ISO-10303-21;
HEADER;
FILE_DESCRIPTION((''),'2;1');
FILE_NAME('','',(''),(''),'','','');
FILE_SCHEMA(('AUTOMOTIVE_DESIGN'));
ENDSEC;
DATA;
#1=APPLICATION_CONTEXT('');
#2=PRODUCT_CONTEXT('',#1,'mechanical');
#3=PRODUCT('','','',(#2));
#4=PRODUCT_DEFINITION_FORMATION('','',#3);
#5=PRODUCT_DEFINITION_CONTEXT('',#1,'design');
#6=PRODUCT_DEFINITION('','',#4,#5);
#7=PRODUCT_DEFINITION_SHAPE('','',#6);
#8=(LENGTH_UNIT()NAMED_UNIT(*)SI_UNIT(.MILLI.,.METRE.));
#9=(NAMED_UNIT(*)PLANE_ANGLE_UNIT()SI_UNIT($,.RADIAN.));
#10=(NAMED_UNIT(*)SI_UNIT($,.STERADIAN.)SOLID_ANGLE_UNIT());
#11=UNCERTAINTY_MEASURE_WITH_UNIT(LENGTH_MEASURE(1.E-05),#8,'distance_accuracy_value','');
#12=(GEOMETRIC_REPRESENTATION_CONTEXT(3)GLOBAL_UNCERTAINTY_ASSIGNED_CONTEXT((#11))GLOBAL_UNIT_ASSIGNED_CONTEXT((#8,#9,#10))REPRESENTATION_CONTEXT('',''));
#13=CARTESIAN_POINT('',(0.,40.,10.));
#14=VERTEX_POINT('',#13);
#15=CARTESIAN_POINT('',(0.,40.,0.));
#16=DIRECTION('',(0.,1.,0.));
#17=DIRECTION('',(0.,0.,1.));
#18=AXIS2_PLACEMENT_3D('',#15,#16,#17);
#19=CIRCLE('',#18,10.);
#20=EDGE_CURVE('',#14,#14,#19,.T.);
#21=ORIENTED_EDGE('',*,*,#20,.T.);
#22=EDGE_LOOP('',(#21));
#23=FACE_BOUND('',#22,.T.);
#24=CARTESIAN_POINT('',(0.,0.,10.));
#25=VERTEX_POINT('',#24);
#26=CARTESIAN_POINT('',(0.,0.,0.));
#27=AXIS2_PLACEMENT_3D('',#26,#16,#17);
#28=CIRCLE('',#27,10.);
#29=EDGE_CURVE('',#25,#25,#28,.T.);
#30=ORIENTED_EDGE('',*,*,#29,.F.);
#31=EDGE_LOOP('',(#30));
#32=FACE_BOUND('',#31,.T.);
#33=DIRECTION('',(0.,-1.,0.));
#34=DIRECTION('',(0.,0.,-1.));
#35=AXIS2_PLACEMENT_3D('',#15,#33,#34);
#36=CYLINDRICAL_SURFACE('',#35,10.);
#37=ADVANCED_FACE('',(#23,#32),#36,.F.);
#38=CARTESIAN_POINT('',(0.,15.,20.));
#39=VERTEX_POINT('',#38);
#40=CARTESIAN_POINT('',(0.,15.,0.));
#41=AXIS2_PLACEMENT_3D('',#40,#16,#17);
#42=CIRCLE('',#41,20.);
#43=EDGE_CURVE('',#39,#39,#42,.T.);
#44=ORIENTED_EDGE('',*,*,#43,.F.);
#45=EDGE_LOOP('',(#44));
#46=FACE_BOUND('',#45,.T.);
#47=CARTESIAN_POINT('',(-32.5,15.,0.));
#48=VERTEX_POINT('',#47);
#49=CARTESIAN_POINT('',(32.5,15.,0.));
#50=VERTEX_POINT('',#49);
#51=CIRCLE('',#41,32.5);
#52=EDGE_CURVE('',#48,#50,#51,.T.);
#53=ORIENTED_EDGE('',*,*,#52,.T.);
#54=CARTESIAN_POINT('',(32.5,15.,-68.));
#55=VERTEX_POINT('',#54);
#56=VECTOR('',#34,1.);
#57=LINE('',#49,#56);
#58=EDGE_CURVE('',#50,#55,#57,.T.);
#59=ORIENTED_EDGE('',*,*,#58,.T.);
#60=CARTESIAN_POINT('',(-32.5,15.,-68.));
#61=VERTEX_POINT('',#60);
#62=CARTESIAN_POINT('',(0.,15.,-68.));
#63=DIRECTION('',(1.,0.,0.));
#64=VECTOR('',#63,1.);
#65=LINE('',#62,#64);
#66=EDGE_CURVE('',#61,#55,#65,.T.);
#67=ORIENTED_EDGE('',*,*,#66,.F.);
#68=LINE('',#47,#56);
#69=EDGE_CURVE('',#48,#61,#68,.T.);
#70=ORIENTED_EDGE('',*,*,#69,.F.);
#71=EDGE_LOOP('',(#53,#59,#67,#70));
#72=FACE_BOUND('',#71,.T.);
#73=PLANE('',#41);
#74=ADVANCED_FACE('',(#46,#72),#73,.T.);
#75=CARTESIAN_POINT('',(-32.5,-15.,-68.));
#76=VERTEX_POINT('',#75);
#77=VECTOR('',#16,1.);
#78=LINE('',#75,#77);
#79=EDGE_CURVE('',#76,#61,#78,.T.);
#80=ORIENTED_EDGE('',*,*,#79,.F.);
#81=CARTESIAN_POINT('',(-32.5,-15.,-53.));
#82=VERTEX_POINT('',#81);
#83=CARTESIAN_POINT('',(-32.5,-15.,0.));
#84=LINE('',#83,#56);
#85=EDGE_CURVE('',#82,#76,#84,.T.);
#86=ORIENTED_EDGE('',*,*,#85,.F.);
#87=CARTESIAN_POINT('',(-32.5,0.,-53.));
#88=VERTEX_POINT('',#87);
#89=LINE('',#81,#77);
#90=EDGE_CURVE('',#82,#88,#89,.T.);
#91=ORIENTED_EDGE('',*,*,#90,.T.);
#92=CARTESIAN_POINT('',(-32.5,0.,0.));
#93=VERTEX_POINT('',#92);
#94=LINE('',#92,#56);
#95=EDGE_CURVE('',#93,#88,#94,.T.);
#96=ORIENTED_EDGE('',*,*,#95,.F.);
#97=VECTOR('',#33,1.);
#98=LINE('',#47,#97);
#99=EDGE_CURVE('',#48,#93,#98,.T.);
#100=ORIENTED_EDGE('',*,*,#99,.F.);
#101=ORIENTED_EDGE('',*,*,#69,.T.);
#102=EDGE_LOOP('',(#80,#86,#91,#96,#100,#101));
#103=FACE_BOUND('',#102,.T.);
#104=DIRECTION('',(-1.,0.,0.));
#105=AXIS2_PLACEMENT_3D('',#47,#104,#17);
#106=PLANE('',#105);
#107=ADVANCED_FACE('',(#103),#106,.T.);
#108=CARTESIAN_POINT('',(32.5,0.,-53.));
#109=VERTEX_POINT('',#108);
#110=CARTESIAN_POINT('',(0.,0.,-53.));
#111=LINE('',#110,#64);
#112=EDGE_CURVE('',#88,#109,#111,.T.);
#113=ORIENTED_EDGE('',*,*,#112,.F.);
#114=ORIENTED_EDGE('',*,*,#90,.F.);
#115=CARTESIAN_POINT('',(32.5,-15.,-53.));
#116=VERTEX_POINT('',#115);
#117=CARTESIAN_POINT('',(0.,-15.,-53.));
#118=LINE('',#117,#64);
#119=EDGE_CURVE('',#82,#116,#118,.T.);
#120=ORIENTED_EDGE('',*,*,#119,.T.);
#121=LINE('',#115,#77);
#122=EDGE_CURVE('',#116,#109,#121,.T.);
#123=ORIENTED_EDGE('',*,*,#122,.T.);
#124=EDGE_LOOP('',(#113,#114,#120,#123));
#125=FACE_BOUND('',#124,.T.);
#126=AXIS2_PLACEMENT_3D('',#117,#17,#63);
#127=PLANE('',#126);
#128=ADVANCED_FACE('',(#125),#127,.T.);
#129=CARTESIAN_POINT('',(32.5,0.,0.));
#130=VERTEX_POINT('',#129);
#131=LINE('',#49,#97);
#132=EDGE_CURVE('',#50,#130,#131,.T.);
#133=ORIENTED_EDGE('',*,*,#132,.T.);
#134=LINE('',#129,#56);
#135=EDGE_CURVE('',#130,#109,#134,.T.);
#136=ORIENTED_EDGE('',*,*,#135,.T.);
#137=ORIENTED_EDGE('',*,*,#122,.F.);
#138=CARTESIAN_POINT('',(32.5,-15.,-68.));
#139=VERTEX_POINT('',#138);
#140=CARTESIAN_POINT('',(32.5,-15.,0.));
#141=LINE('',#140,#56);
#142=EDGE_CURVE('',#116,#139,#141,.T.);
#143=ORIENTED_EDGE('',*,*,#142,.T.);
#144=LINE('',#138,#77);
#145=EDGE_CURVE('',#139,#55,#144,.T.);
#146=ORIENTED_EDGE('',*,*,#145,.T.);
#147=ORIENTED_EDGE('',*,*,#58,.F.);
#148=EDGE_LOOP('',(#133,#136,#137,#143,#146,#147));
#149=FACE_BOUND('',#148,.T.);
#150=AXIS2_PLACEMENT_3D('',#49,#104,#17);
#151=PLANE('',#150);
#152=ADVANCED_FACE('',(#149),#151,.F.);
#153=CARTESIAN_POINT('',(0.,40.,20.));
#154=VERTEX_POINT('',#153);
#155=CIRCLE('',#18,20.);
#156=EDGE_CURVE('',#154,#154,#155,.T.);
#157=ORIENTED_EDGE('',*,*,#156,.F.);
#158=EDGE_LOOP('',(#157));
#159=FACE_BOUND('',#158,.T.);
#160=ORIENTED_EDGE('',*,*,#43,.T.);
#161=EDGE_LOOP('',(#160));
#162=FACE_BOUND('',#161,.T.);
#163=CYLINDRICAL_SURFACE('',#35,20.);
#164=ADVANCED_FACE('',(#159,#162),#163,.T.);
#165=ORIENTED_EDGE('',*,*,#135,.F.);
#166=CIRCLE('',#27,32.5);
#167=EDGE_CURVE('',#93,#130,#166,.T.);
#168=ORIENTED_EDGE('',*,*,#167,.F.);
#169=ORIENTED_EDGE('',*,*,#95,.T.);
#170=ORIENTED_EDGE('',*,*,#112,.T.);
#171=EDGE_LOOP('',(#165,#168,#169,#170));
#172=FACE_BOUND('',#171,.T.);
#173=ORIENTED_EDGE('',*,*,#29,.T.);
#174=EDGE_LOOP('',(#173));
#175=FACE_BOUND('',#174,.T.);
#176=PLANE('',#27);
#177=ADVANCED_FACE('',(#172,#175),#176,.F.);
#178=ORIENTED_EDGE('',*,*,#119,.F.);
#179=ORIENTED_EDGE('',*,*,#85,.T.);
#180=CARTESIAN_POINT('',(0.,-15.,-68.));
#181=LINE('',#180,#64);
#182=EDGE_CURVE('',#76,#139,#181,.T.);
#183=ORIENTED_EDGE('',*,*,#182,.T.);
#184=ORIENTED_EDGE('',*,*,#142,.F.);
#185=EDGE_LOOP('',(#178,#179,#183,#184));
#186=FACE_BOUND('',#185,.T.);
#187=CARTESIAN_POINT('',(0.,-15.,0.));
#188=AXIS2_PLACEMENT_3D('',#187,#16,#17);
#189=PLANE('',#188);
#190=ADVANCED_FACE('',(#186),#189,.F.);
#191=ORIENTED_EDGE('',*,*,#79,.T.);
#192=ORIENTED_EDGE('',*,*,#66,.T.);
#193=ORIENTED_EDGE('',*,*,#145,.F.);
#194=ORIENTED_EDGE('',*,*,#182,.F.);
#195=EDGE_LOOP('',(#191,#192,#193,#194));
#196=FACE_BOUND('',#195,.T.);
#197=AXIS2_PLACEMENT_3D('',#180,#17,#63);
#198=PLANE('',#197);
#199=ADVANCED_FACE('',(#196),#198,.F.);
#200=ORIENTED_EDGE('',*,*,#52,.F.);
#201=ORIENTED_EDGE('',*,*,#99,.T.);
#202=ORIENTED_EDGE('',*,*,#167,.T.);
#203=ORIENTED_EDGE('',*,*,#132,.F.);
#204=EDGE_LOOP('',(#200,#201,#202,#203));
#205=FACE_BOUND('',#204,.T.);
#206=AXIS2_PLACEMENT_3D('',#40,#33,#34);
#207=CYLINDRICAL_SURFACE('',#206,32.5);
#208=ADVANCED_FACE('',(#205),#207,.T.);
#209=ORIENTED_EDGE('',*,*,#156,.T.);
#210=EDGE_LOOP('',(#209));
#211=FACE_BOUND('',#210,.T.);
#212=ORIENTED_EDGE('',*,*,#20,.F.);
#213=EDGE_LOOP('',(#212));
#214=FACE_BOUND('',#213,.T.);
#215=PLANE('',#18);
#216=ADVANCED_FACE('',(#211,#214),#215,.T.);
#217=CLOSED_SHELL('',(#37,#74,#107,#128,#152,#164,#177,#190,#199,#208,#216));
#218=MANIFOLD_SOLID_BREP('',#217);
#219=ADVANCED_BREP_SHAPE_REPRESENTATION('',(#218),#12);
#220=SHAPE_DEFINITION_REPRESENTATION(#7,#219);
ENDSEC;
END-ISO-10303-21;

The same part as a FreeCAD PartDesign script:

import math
import FreeCAD as App
import Part
import Sketcher
from FreeCAD import Vector
Q = App.Units.Quantity


def add_polygon(sketch, points):
    """Adds a closed chain of lines whose ends are joined by coincident constraints."""
    first, n = sketch.GeometryCount, len(points)
    for a, b in zip(points, points[1:] + points[:1]):
        sketch.addGeometry(Part.LineSegment(App.Vector(*a, 0), App.Vector(*b, 0)), False)
    for i in range(n):
        sketch.addConstraint(Sketcher.Constraint("Coincident", first + i, 2, first + (i + 1) % n, 1))

doc = App.newDocument("Part")
body = doc.addObject("PartDesign::Body", "Body")

# Sketch on XZ plane
sketch1 = body.newObject("Sketcher::SketchObject", "Sketch")
sketch1.AttachmentSupport = (doc.getObject("XZ_Plane"), [""])
sketch1.MapMode = "FlatFace"
sketch1.addGeometry([
    Part.Circle(Vector(0, 0, 0), Vector(0, 0, 1), 20),
    Part.Circle(Vector(0, 0, 0), Vector(0, 0, 1), 10),
], False)
sketch1.addConstraint([
    Sketcher.Constraint("Coincident", 0, 3, -1, 1),
    Sketcher.Constraint("Coincident", 1, 3, -1, 1),
    Sketcher.Constraint("Diameter", 0, Q("40 mm")),
    Sketcher.Constraint("Diameter", 1, Q("20 mm")),
])
pad1 = body.newObject("PartDesign::Pad", "Pad")
pad1.Profile = sketch1
pad1.Length = 40
pad1.Reversed = True

# Sketch on XZ plane
sketch2 = body.newObject("Sketcher::SketchObject", "Sketch001")
sketch2.AttachmentSupport = (doc.getObject("XZ_Plane"), [""])
sketch2.MapMode = "FlatFace"
sketch2.addGeometry([
    Part.LineSegment(Vector(32.5, -53, 0), Vector(-32.5, -53, 0)),  # 0
    Part.LineSegment(Vector(-32.5, -53, 0), Vector(-32.5, 0, 0)),  # 1
    Part.ArcOfCircle(Part.Circle(Vector(0, 0, 0), Vector(0, 0, 1), 32.5), math.radians(0), math.radians(180)),  # 2
    Part.LineSegment(Vector(32.5, 0, 0), Vector(32.5, -53, 0)),  # 3
    Part.Circle(Vector(0, 0, 0), Vector(0, 0, 1), 20),  # 4
], False)
sketch2.addConstraint([
    Sketcher.Constraint("Coincident", 0, 2, 1, 1),
    Sketcher.Constraint("Tangent", 1, 2, 2, 2),
    Sketcher.Constraint("Tangent", 2, 1, 3, 1),
    Sketcher.Constraint("Coincident", 3, 2, 0, 1),
    Sketcher.Constraint("Horizontal", 0),
    Sketcher.Constraint("Vertical", 1),
    Sketcher.Constraint("Vertical", 3),
    Sketcher.Constraint("Coincident", 2, 3, -1, 1),
    Sketcher.Constraint("Coincident", 4, 3, -1, 1),
    Sketcher.Constraint("Diameter", 4, Q("40 mm")),
    Sketcher.Constraint("Radius", 2, Q("32.5 mm")),
    Sketcher.Constraint("DistanceY", 1, 1, 1, 2, Q("53 mm")),
])
pad2 = body.newObject("PartDesign::Pad", "Pad001")
pad2.Profile = sketch2
pad2.Length = 15
pad2.Reversed = True

# Sketch on XZ plane
sketch3 = body.newObject("Sketcher::SketchObject", "Sketch002")
sketch3.AttachmentSupport = (doc.getObject("XZ_Plane"), [""])
sketch3.MapMode = "FlatFace"
add_polygon(sketch3, [(-32.5, -68), (-32.5, -53), (32.5, -53), (32.5, -68)])  # lines 0-3
sketch3.addConstraint([
    Sketcher.Constraint("Vertical", 0),
    Sketcher.Constraint("Horizontal", 1),
    Sketcher.Constraint("Vertical", 2),
    Sketcher.Constraint("Horizontal", 3),
    Sketcher.Constraint("DistanceX", 1, 1, 1, 2, Q("65 mm")),
    Sketcher.Constraint("DistanceY", 0, 1, 0, 2, Q("15 mm")),
    Sketcher.Constraint("DistanceY", 0, 2, -1, 1, Q("53 mm")),
    Sketcher.Constraint("DistanceX", 0, 2, -1, 1, Q("32.5 mm")),
])
pad3 = body.newObject("PartDesign::Pad", "Pad002")
pad3.Profile = sketch3
pad3.Type = "TwoLengths"
pad3.Length = 15
pad3.Length2 = 15
pad3.Reversed = True

doc.recompute()
